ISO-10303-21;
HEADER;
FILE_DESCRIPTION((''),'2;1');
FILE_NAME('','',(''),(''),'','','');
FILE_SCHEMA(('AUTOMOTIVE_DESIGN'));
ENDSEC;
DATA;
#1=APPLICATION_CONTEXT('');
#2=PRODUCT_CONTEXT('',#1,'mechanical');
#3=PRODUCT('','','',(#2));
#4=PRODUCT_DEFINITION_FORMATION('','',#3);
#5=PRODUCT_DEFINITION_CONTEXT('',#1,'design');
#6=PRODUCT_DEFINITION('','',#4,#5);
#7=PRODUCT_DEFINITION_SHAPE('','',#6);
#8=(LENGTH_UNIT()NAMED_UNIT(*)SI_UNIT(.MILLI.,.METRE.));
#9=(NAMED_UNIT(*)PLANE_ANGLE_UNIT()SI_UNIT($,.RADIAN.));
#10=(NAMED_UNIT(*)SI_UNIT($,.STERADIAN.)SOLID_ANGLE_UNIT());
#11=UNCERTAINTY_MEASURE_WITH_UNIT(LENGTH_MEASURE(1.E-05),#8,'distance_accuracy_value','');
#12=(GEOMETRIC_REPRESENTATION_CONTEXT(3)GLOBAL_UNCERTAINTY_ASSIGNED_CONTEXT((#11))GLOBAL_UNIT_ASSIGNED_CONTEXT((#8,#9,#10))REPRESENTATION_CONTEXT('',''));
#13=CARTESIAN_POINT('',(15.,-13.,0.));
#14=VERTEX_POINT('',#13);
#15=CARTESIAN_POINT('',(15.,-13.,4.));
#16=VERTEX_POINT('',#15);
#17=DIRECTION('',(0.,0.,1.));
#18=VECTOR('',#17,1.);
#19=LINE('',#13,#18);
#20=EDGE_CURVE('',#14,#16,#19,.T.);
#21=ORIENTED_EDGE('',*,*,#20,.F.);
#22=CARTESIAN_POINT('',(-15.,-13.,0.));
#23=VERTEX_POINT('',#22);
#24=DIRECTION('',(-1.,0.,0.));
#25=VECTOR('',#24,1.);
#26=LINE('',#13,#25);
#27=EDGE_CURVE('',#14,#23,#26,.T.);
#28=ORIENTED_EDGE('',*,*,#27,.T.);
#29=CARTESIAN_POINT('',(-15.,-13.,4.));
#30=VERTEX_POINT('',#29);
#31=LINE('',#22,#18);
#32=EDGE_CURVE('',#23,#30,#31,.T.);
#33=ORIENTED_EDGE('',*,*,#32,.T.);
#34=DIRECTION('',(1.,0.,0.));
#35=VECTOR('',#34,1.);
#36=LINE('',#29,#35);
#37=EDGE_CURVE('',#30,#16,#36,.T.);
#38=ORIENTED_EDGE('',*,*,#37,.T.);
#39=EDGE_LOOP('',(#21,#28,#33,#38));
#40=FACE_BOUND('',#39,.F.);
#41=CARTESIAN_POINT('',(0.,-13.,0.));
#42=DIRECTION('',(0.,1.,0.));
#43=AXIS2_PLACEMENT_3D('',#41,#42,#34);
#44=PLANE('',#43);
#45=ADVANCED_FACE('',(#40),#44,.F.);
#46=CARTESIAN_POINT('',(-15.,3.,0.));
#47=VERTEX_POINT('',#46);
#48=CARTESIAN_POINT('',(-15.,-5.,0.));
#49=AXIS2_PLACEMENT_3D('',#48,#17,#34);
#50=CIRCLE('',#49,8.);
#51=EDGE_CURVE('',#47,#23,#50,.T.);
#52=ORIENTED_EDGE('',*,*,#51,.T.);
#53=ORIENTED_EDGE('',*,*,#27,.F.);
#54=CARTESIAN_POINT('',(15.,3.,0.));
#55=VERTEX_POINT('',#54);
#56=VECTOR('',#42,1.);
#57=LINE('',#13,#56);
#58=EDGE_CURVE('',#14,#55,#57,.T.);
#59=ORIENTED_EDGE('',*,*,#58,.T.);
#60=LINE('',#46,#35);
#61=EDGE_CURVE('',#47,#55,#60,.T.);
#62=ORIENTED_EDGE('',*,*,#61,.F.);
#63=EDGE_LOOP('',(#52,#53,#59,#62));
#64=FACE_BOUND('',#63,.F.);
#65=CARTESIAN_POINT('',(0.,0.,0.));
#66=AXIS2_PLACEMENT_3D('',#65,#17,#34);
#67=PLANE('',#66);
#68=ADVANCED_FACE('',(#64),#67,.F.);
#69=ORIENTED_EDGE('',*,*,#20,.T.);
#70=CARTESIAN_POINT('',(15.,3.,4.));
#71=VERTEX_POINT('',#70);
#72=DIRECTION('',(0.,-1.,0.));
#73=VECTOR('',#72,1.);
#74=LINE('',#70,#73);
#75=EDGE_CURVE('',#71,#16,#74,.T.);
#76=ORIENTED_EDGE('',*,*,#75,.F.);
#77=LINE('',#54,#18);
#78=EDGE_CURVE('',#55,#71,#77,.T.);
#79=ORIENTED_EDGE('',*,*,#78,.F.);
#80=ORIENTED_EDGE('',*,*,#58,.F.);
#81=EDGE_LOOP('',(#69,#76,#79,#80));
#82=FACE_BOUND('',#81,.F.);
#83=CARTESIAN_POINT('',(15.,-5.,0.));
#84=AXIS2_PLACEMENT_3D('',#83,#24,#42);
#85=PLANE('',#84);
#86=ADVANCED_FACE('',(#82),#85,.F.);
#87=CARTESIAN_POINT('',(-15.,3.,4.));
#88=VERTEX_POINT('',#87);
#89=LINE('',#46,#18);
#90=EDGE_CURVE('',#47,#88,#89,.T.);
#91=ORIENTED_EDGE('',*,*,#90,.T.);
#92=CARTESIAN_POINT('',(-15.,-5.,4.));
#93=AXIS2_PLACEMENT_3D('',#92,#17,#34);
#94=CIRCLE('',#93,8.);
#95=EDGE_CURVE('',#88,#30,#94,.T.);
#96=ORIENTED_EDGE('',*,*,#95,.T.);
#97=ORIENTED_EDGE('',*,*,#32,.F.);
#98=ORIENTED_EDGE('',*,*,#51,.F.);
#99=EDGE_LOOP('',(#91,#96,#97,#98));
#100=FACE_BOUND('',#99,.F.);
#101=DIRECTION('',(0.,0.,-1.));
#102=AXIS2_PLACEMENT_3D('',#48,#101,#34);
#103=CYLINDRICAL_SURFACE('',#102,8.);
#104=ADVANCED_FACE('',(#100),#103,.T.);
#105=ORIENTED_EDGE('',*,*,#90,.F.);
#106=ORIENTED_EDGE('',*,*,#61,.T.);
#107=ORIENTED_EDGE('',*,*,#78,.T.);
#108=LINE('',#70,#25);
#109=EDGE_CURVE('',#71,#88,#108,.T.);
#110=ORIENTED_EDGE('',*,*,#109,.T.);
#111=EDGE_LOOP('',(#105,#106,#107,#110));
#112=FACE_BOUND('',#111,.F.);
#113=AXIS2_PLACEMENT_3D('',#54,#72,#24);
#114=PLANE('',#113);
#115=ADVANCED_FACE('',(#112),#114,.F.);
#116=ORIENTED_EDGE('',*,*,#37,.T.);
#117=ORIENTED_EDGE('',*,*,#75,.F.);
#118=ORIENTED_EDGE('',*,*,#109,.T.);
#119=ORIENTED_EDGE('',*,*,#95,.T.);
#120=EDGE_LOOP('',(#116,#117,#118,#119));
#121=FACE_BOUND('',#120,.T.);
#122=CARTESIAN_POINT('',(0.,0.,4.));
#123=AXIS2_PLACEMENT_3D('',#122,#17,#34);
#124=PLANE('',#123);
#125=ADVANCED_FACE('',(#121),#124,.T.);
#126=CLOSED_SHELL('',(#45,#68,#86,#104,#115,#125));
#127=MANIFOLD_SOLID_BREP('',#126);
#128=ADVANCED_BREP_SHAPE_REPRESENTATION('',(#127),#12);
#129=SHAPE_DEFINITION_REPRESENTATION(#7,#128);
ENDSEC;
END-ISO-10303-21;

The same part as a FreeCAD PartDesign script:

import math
import FreeCAD as App
import Part
import Sketcher

V = App.Vector
Q = App.Units.Quantity

doc = App.newDocument("Part")
body = doc.addObject("PartDesign::Body", "Body")

# Sketch on XY plane
sketch1 = body.newObject("Sketcher::SketchObject", "Sketch")
sketch1.AttachmentSupport = (doc.getObject("XY_Plane"), [""])
sketch1.MapMode = "FlatFace"
sketch1.addGeometry(Part.LineSegment(V(15, 3, 0), V(-15, 3, 0)), False)
sketch1.addGeometry(Part.ArcOfCircle(Part.Circle(V(-15, -5, 0), V(0, 0, 1), 8), math.radians(90), math.radians(270)), False)
sketch1.addGeometry(Part.LineSegment(V(-15, -13, 0), V(15, -13, 0)), False)
sketch1.addGeometry(Part.LineSegment(V(15, -13, 0), V(15, 3, 0)), False)
sketch1.addConstraint(Sketcher.Constraint("Tangent", 0, 2, 1, 1))
sketch1.addConstraint(Sketcher.Constraint("Tangent", 1, 2, 2, 1))
sketch1.addConstraint(Sketcher.Constraint("Coincident", 2, 2, 3, 1))
sketch1.addConstraint(Sketcher.Constraint("Coincident", 3, 2, 0, 1))
sketch1.addConstraint(Sketcher.Constraint("Horizontal", 0))
sketch1.addConstraint(Sketcher.Constraint("Horizontal", 2))
sketch1.addConstraint(Sketcher.Constraint("Vertical", 3))
sketch1.addConstraint(Sketcher.Constraint("Radius", 1, Q("8 mm")))
sketch1.addConstraint(Sketcher.Constraint("DistanceX", 1, 3, -1, 1, Q("15 mm")))
sketch1.addConstraint(Sketcher.Constraint("DistanceX", -1, 1, 2, 2, Q("15 mm")))
sketch1.addConstraint(Sketcher.Constraint("DistanceY", 1, 3, -1, 1, Q("5 mm")))
pad1 = body.newObject("PartDesign::Pad", "Pad")
pad1.Profile = sketch1
pad1.Length = 4

doc.recompute()
